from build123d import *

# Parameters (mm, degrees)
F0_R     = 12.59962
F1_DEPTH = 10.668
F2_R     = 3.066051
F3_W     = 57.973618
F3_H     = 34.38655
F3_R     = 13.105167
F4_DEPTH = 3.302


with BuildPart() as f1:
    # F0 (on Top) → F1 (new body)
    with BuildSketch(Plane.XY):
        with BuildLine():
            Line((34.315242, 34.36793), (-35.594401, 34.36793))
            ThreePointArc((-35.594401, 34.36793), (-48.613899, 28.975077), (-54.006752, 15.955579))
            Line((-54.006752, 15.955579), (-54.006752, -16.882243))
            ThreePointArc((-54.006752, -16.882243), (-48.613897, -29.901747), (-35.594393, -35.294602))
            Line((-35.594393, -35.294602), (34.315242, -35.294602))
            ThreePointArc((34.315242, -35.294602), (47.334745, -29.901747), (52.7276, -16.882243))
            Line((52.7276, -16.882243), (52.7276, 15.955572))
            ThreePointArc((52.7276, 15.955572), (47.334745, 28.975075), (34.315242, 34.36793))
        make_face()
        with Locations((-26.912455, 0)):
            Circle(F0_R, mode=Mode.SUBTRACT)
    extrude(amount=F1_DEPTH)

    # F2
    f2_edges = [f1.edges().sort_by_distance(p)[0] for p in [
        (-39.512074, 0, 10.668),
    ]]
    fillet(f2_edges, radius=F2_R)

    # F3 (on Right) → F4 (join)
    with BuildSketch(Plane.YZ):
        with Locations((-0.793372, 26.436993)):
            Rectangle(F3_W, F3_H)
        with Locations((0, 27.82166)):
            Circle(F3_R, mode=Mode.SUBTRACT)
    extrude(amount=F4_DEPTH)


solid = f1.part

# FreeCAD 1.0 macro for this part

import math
import FreeCAD as App
import Part
import Sketcher
from FreeCAD import Vector
Q = App.Units.Quantity


def edges_at(feature, points):
    """Names of the edges that pass closest to the given points."""
    edges = feature.Shape.Edges
    near = lambda p: min(range(len(edges)), key=lambda i: edges[i].distToShape(Part.Vertex(*p))[0])
    return sorted({f"Edge{near(p) + 1}" for p in points})


def add_polygon(sketch, points):
    """Adds a closed chain of lines whose ends are joined by coincident constraints."""
    first, n = sketch.GeometryCount, len(points)
    for a, b in zip(points, points[1:] + points[:1]):
        sketch.addGeometry(Part.LineSegment(App.Vector(*a, 0), App.Vector(*b, 0)), False)
    for i in range(n):
        sketch.addConstraint(Sketcher.Constraint("Coincident", first + i, 2, first + (i + 1) % n, 1))

doc = App.newDocument("Part")
body = doc.addObject("PartDesign::Body", "Body")

sketch1 = body.newObject("Sketcher::SketchObject", "Sketch")
sketch1.AttachmentSupport = (doc.getObject("XY_Plane"), [""])
sketch1.MapMode = "FlatFace"
sketch1.addGeometry(Part.LineSegment(Vector(34.315242, 34.36793, 0), Vector(-35.594401, 34.36793, 0)), False)
sketch1.addGeometry(Part.ArcOfCircle(Part.Circle(Vector(-35.5944, 15.955578, 0), Vector(0, 0, 1), 18.412352), math.radians(90.000003), math.radians(179.999997)), False)
sketch1.addGeometry(Part.LineSegment(Vector(-54.006752, 15.955579, 0), Vector(-54.006752, -16.882243, 0)), False)
sketch1.addGeometry(Part.ArcOfCircle(Part.Circle(Vector(-35.594393, -16.882243, 0), Vector(0, 0, 1), 18.412359), math.radians(179.999999), math.radians(270.000001)), False)
sketch1.addGeometry(Part.LineSegment(Vector(-35.594393, -35.294602, 0), Vector(34.315242, -35.294602, 0)), False)
sketch1.addGeometry(Part.ArcOfCircle(Part.Circle(Vector(34.315241, -16.882243, 0), Vector(0, 0, 1), 18.412359), math.radians(-89.999998), math.radians(0.000001)), False)
sketch1.addGeometry(Part.LineSegment(Vector(52.7276, -16.882243, 0), Vector(52.7276, 15.955572, 0)), False)
sketch1.addGeometry(Part.ArcOfCircle(Part.Circle(Vector(34.315241, 15.955571, 0), Vector(0, 0, 1), 18.412359), math.radians(0.000002), math.radians(89.999998)), False)
sketch1.addGeometry(Part.Circle(Vector(-26.912455, 0, 0), Vector(0, 0, 1), 12.59962), False)
sketch1.addConstraint(Sketcher.Constraint("Tangent", 0, 2, 1, 1))
sketch1.addConstraint(Sketcher.Constraint("Tangent", 1, 2, 2, 1))
sketch1.addConstraint(Sketcher.Constraint("Tangent", 2, 2, 3, 1))
sketch1.addConstraint(Sketcher.Constraint("Tangent", 3, 2, 4, 1))
sketch1.addConstraint(Sketcher.Constraint("Tangent", 4, 2, 5, 1))
sketch1.addConstraint(Sketcher.Constraint("Tangent", 5, 2, 6, 1))
sketch1.addConstraint(Sketcher.Constraint("Tangent", 6, 2, 7, 1))
sketch1.addConstraint(Sketcher.Constraint("Tangent", 7, 2, 0, 1))
sketch1.addConstraint(Sketcher.Constraint("Horizontal", 0))
sketch1.addConstraint(Sketcher.Constraint("Vertical", 2))
sketch1.addConstraint(Sketcher.Constraint("Horizontal", 4))
sketch1.addConstraint(Sketcher.Constraint("Vertical", 6))
sketch1.addConstraint(Sketcher.Constraint("Equal", 3, 5))
sketch1.addConstraint(Sketcher.Constraint("Equal", 5, 7))
sketch1.addConstraint(Sketcher.Constraint("PointOnObject", 8, 3, -1))
sketch1.addConstraint(Sketcher.Constraint("Diameter", 8, 25.19924))
sketch1.addConstraint(Sketcher.Constraint("Radius", 1, 18.412352))
sketch1.addConstraint(Sketcher.Constraint("Radius", 3, 18.412359))
sketch1.addConstraint(Sketcher.Constraint("DistanceX", 1, 3, -1, 1, 35.5944))
sketch1.addConstraint(Sketcher.Constraint("DistanceY", 3, 2, -1, 1, 35.294602))
sketch1.addConstraint(Sketcher.Constraint("DistanceX", -1, 1, 5, 2, 52.7276))
sketch1.addConstraint(Sketcher.Constraint("DistanceY", 2, 2, 2, 1, 32.837822))
sketch1.addConstraint(Sketcher.Constraint("DistanceX", 3, 3, 8, 3, 8.681938))
pad1 = body.newObject("PartDesign::Pad", "Pad")
pad1.Profile = sketch1
pad1.Length = Q("0.42 in")
doc.recompute()

fillet = body.newObject("PartDesign::Fillet", "Fillet")
fillet.Base = (pad1, edges_at(pad1, [(-39.512, 0, 10.668)]))
fillet.Radius = 3.066051

sketch2 = body.newObject("Sketcher::SketchObject", "Sketch001")
sketch2.AttachmentSupport = (doc.getObject("YZ_Plane"), [""])
sketch2.MapMode = "FlatFace"
add_polygon(sketch2, [(-29.780181, 43.630268), (-29.780181, 9.243718), (28.193437, 9.243718), (28.193437, 43.630268)])
sketch2.addGeometry(Part.Circle(Vector(0, 27.82166, 0), Vector(0, 0, 1), 13.105167), False)
sketch2.addConstraint(Sketcher.Constraint("Vertical", 0))
sketch2.addConstraint(Sketcher.Constraint("Horizontal", 1))
sketch2.addConstraint(Sketcher.Constraint("Vertical", 2))
sketch2.addConstraint(Sketcher.Constraint("Horizontal", 3))
sketch2.addConstraint(Sketcher.Constraint("PointOnObject", 4, 3, -2))
sketch2.addConstraint(Sketcher.Constraint("Diameter", 4, 26.210334))
sketch2.addConstraint(Sketcher.Constraint("DistanceX", 1, 1, 1, 2, 57.973618))
sketch2.addConstraint(Sketcher.Constraint("DistanceY", 0, 2, 0, 1, 34.38655))
sketch2.addConstraint(Sketcher.Constraint("DistanceY", -1, 1, 4, 3, 27.82166))
sketch2.addConstraint(Sketcher.Constraint("DistanceX", 0, 2, -1, 1, 29.780181))
sketch2.addConstraint(Sketcher.Constraint("DistanceY", 0, 2, 4, 3, 18.577942))
pad2 = body.newObject("PartDesign::Pad", "Pad001")
pad2.Profile = sketch2
pad2.Length = Q("0.13 in")

doc.recompute()
